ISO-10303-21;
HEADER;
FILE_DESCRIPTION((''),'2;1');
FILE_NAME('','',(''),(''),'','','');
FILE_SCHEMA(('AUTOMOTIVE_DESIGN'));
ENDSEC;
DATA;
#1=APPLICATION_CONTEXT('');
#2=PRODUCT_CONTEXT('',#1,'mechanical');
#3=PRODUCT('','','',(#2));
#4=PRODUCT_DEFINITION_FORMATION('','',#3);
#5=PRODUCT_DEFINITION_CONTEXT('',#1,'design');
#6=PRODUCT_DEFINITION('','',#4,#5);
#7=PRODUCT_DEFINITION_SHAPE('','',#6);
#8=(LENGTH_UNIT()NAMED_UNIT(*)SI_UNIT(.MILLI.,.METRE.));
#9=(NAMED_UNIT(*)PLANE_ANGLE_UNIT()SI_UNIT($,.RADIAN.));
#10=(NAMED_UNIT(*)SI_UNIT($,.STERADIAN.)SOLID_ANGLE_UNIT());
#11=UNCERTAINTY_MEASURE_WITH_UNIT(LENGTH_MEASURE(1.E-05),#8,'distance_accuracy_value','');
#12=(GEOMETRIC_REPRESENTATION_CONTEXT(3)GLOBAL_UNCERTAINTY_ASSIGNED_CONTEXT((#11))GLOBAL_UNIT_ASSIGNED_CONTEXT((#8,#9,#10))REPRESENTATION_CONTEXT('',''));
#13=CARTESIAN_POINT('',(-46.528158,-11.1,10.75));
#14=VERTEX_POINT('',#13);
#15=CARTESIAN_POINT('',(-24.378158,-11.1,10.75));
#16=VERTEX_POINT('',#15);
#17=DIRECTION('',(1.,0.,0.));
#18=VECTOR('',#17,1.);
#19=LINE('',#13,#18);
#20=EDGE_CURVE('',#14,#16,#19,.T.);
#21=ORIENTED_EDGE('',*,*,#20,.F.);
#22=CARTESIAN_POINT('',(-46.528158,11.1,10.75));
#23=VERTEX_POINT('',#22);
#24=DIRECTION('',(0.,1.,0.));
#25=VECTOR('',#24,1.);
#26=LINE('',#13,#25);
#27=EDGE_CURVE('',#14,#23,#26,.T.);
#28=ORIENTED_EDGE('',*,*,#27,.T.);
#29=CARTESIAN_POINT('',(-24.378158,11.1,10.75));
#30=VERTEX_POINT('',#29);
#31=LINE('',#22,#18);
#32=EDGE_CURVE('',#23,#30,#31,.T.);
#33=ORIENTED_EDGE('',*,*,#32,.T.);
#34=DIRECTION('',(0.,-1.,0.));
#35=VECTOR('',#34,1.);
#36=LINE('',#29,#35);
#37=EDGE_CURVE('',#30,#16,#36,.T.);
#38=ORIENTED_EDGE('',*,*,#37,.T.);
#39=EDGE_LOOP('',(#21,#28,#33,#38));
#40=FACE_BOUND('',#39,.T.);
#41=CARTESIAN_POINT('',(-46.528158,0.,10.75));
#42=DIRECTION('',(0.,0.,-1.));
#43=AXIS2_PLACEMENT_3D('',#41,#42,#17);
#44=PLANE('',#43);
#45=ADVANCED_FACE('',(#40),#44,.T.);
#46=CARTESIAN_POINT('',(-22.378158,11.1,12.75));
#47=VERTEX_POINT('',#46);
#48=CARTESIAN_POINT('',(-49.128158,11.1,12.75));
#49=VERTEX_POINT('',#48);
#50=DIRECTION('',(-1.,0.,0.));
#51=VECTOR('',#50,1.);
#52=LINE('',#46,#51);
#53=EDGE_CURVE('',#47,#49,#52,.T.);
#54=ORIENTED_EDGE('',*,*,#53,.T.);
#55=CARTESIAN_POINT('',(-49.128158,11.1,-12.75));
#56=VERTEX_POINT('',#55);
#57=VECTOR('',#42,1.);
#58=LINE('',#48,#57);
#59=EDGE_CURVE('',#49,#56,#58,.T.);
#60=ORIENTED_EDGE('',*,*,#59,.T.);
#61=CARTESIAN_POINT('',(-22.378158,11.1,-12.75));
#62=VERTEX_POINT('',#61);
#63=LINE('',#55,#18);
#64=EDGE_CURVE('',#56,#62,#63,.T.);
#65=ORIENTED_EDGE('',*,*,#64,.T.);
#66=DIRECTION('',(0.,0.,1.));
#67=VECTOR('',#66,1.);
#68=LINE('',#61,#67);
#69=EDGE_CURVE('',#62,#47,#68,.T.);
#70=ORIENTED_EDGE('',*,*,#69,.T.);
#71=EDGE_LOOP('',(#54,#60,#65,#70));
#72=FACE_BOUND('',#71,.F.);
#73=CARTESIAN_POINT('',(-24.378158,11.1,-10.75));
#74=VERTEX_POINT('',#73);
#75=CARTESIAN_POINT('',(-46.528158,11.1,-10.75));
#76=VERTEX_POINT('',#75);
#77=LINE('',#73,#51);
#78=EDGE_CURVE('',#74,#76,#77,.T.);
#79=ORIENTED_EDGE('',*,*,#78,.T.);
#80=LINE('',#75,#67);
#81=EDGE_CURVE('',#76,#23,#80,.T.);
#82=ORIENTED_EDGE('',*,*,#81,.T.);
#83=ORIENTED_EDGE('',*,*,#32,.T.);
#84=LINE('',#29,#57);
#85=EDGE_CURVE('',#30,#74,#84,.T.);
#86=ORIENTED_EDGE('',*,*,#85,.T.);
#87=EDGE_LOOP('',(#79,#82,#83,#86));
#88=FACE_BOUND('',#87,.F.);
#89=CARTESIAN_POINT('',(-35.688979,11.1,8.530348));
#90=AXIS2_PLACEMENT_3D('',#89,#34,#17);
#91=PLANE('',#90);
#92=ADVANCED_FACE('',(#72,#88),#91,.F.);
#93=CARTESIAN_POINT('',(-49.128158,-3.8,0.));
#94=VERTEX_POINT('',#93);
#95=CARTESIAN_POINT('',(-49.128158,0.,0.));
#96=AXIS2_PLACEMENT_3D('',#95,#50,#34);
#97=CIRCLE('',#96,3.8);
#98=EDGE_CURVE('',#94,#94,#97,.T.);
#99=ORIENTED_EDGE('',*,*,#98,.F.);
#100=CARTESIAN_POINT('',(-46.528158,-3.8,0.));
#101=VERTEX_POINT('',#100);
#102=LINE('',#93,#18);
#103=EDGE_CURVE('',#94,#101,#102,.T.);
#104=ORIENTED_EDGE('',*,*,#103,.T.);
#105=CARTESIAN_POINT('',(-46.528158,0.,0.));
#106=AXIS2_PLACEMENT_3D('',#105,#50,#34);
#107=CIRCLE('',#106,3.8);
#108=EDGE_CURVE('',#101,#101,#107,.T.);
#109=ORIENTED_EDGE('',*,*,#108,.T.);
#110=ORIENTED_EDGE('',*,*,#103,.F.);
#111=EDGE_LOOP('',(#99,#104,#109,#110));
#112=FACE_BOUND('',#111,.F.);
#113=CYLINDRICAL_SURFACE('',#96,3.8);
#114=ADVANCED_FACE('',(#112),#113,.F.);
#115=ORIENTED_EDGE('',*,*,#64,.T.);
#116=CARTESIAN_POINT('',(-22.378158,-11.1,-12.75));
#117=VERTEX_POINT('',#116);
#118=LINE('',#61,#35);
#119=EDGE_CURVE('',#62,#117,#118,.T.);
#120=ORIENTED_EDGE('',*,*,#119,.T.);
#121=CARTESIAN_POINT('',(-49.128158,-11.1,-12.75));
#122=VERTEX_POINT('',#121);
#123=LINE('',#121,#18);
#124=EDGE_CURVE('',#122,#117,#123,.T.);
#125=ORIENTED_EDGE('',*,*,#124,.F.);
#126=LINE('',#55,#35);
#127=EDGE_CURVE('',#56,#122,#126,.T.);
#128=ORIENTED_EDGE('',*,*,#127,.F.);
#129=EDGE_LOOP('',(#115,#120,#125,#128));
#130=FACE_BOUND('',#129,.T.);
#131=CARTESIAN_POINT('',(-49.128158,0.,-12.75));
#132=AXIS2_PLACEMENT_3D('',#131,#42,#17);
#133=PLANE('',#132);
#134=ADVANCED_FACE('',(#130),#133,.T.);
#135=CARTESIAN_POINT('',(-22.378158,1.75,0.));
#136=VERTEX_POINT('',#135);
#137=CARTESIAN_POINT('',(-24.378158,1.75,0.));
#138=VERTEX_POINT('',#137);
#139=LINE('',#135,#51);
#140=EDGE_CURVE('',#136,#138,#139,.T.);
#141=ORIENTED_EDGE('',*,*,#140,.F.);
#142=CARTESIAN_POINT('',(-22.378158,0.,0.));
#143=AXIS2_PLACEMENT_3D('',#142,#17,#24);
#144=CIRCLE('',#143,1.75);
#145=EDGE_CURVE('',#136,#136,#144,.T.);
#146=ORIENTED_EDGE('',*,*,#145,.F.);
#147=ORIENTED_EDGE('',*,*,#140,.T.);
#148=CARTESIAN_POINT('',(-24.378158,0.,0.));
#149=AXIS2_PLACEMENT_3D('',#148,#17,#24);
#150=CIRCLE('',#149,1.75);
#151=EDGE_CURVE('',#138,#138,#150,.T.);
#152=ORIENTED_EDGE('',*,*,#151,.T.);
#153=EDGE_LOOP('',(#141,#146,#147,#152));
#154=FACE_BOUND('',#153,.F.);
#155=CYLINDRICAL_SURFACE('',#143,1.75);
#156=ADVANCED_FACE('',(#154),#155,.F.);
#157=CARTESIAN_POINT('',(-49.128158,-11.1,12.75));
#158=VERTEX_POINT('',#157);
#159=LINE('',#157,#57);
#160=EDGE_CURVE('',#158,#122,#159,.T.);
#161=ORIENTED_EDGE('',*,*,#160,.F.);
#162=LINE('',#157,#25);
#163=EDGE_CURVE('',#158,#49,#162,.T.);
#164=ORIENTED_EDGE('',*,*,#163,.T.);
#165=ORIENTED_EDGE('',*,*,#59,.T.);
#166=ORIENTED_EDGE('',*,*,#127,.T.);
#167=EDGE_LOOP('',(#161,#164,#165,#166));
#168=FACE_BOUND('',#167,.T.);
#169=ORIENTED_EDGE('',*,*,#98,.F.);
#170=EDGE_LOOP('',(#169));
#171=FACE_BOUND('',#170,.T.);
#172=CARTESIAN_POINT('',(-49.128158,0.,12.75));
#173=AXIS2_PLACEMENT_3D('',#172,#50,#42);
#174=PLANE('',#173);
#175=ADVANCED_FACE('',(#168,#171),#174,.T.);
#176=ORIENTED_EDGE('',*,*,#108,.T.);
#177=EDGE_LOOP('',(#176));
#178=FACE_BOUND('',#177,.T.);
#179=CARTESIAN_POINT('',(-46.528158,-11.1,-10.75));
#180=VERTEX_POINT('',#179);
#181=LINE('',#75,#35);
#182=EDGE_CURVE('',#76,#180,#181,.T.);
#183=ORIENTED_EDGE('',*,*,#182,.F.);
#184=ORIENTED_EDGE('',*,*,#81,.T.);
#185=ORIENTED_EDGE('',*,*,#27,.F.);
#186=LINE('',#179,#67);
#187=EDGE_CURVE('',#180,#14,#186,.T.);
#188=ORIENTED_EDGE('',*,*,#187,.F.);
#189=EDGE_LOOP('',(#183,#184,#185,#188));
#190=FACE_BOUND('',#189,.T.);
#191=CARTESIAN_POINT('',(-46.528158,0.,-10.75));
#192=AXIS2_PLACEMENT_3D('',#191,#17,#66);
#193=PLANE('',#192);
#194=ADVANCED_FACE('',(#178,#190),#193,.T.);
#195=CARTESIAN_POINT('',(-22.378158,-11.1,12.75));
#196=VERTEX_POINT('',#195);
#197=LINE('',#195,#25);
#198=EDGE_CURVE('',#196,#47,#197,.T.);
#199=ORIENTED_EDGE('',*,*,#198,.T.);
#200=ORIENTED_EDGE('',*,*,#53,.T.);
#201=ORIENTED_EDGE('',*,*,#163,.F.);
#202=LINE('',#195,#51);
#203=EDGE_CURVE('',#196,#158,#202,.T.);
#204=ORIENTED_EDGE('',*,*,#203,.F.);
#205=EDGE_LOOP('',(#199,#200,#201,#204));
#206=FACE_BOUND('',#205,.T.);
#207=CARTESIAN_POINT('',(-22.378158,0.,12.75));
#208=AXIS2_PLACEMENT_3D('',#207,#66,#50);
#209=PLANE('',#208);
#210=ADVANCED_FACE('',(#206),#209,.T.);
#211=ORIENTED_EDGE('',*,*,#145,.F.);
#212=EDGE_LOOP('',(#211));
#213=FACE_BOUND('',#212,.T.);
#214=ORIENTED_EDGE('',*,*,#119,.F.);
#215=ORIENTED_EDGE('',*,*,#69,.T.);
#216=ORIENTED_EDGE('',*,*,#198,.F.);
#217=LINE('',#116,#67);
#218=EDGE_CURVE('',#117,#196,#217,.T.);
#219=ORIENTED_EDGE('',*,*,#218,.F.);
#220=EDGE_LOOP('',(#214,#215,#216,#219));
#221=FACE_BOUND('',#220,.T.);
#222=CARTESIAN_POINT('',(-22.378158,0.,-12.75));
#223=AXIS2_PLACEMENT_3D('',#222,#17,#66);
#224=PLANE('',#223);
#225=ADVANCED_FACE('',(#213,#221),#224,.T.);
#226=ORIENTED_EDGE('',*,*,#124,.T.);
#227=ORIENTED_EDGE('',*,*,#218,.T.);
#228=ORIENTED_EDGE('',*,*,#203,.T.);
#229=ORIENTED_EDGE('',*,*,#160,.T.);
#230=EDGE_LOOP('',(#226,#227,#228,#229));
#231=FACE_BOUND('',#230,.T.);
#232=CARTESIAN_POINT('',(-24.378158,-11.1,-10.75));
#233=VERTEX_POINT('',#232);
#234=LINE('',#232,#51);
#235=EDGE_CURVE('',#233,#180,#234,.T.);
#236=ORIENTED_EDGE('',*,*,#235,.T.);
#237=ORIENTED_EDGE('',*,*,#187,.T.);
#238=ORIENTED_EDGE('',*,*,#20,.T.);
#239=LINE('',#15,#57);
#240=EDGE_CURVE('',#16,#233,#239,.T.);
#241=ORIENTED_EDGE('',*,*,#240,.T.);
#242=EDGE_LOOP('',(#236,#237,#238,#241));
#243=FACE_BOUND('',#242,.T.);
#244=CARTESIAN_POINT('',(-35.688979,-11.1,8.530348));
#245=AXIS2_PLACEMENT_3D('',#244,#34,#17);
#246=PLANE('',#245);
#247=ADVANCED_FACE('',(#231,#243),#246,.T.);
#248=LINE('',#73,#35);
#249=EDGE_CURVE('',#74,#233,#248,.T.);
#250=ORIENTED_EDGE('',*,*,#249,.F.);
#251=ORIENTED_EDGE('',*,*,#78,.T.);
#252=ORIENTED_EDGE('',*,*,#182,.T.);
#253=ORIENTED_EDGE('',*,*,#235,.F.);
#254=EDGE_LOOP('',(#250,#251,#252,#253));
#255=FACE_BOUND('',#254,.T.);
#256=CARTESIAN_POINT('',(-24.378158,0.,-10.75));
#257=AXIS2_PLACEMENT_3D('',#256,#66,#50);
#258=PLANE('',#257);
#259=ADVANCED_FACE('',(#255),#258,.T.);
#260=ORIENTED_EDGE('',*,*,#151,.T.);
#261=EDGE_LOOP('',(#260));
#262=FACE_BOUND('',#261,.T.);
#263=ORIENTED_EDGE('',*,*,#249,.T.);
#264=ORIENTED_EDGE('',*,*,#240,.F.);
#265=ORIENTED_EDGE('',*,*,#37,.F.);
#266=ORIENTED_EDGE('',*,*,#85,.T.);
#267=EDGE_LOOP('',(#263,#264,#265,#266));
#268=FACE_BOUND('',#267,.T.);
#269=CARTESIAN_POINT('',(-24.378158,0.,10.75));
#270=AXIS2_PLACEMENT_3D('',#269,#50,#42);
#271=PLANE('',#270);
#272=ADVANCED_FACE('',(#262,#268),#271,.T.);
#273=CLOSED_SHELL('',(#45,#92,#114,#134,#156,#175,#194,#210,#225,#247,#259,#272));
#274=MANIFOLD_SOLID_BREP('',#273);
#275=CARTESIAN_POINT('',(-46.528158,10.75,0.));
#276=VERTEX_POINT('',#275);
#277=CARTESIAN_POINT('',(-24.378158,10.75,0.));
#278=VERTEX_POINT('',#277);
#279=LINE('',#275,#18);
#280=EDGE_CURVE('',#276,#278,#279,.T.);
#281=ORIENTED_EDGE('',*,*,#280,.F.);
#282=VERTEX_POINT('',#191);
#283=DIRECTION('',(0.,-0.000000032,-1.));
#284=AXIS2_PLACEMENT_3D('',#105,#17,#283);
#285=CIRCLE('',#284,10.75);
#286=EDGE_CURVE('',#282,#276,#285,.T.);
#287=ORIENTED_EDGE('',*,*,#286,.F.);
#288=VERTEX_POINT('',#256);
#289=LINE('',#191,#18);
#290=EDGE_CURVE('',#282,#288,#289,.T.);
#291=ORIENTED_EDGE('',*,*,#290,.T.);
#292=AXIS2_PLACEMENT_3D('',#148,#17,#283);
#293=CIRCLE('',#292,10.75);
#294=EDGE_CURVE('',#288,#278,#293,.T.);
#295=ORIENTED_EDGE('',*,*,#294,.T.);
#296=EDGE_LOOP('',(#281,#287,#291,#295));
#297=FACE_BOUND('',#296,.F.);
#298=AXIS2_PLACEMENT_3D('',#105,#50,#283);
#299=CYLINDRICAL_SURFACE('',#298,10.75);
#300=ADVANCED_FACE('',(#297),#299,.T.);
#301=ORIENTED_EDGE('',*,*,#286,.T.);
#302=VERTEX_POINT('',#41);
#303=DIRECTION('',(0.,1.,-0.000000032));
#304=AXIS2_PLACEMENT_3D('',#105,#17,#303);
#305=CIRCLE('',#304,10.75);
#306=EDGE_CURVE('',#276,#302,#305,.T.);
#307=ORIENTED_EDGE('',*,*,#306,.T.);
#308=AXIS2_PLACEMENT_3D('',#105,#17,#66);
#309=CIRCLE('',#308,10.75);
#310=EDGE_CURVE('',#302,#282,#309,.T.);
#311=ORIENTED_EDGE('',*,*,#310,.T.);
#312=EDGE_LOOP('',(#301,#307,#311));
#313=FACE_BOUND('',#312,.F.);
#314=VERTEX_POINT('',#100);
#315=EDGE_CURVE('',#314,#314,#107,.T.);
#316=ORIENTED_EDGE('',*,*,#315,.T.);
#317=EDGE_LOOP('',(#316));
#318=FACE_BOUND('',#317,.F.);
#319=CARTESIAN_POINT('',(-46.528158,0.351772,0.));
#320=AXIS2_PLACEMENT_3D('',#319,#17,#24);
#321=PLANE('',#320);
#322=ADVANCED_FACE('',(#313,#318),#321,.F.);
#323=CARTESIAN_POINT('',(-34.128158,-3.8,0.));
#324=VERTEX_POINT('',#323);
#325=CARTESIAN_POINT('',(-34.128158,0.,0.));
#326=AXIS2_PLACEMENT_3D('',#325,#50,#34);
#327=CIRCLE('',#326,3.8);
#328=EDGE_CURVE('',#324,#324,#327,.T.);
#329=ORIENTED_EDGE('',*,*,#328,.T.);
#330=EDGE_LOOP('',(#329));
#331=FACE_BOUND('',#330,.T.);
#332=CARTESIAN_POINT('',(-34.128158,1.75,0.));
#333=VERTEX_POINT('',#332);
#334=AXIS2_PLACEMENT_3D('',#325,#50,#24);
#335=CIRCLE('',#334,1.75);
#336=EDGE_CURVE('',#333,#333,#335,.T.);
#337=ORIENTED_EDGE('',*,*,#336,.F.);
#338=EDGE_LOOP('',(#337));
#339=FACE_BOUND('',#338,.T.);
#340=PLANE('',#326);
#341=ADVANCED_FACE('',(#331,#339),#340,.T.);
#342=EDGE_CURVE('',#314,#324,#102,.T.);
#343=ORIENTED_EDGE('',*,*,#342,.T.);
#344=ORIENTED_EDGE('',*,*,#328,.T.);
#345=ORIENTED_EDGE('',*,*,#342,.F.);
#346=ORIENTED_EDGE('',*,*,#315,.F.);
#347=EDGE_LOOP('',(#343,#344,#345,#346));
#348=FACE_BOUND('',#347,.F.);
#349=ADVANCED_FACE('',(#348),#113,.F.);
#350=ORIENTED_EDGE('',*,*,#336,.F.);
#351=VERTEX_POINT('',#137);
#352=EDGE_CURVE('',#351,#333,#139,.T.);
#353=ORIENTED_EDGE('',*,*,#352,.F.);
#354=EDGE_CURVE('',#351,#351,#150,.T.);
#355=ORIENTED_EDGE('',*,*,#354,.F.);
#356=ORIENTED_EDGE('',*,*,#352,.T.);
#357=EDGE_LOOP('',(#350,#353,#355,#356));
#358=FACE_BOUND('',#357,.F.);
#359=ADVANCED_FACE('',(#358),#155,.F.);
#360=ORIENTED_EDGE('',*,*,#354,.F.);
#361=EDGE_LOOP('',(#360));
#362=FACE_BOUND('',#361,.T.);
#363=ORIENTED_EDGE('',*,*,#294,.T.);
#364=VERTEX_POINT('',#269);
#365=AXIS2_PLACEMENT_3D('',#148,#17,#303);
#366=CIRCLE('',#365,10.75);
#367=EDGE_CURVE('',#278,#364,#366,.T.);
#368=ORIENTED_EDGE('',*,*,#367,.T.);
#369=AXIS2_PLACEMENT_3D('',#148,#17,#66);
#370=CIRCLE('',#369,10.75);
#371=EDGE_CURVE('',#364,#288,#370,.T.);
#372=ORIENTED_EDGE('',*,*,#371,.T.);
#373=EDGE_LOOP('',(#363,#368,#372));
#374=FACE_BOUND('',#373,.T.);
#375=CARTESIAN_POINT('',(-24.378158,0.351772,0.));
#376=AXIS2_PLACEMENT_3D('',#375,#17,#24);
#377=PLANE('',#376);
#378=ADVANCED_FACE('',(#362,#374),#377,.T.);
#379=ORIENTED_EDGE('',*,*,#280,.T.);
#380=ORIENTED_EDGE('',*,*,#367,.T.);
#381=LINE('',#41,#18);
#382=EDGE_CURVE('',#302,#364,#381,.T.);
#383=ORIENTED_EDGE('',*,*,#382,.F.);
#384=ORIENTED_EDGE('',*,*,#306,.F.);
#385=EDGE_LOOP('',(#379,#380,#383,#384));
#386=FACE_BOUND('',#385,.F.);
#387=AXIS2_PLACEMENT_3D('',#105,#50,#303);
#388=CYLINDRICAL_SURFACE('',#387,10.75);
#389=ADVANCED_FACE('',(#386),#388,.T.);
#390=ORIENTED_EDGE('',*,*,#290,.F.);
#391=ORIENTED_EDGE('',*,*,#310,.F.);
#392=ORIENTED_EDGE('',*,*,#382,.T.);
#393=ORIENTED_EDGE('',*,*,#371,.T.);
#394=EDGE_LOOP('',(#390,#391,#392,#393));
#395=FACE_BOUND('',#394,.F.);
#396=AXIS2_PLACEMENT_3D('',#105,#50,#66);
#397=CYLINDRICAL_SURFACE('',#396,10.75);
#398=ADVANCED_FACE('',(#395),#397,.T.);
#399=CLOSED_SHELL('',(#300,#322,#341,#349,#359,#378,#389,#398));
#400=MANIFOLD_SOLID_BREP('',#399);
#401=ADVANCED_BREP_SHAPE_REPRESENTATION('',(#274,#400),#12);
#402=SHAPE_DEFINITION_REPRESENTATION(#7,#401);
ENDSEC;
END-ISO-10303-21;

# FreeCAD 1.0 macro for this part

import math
import FreeCAD as App
import Part
import Sketcher
from FreeCAD import Vector


def add_polygon(sketch, points):
    """Adds a closed chain of lines whose ends are joined by coincident constraints."""
    first, n = sketch.GeometryCount, len(points)
    for a, b in zip(points, points[1:] + points[:1]):
        sketch.addGeometry(Part.LineSegment(App.Vector(*a, 0), App.Vector(*b, 0)), False)
    for i in range(n):
        sketch.addConstraint(Sketcher.Constraint("Coincident", first + i, 2, first + (i + 1) % n, 1))

doc = App.newDocument("Part")
body = doc.addObject("PartDesign::Body", "Body")

# Sketch on XZ plane
sketch1 = body.newObject("Sketcher::SketchObject", "Sketch")
sketch1.AttachmentSupport = (doc.getObject("XZ_Plane"), [""])
sketch1.MapMode = "FlatFace"
add_polygon(sketch1, [(-49, 13), (-49, -13), (-22, -13), (-22, 13)])  # lines 0-3
add_polygon(sketch1, [(-47, 11), (-24, 11), (-24, -11), (-47, -11)])  # lines 4-7
sketch1.addConstraint([
    Sketcher.Constraint("Vertical", 0),
    Sketcher.Constraint("Horizontal", 1),
    Sketcher.Constraint("Vertical", 2),
    Sketcher.Constraint("Horizontal", 3),
    Sketcher.Constraint("Horizontal", 4),
    Sketcher.Constraint("Vertical", 5),
    Sketcher.Constraint("Horizontal", 6),
    Sketcher.Constraint("Vertical", 7),
    Sketcher.Constraint("DistanceY", 0, 2, 0, 1, 25.5),
    Sketcher.Constraint("DistanceY", 5, 2, 5, 1, 21.5),
    Sketcher.Constraint("DistanceX", 4, 2, 2, 2, 2.0),
    Sketcher.Constraint("DistanceY", 4, 2, 2, 2, 2.0),
    Sketcher.Constraint("DistanceX", 1, 1, 1, 2, 26.75),
    Sketcher.Constraint("DistanceX", 4, 1, 4, 2, 22.15),
    Sketcher.Constraint("DistanceY", 0, 2, -1, 1, 12.75),
    Sketcher.Constraint("DistanceX", 0, 2, -1, 1, 49.128158),
])
pad1 = body.newObject("PartDesign::Pad", "Pad")
pad1.Profile = sketch1
pad1.Length = 22.2
pad1.Midplane = True
body2 = doc.addObject("PartDesign::Body", "Body001")

# Sketch on YZ plane
sketch2 = body2.newObject("Sketcher::SketchObject", "Sketch001")
sketch2.AttachmentSupport = (doc.getObject("YZ_Plane001"), [""])
sketch2.MapMode = "FlatFace"
sketch2.AttachmentOffset = App.Placement(Vector(0, 0, -46.528158), App.Rotation())
sketch2.addGeometry([
    Part.ArcOfCircle(Part.Circle(Vector(0, 0, 0), Vector(0, 0, 1), 11), math.radians(-90), math.radians(0)),
    Part.ArcOfCircle(Part.Circle(Vector(0, 0, 0), Vector(0, 0, 1), 11), math.radians(0), math.radians(90)),
    Part.ArcOfCircle(Part.Circle(Vector(0, 0, 0), Vector(0, 0, 1), 11), math.radians(90), math.radians(270)),
], False)
sketch2.addConstraint([
    Sketcher.Constraint("Tangent", 0, 2, 1, 1),
    Sketcher.Constraint("Tangent", 1, 2, 2, 1),
    Sketcher.Constraint("Tangent", 2, 2, 0, 1),
    Sketcher.Constraint("Coincident", 0, 3, -1, 1),
    Sketcher.Constraint("PointOnObject", 0, 2, -1),
    Sketcher.Constraint("PointOnObject", 1, 2, -2),
    Sketcher.Constraint("PointOnObject", 2, 2, -2),
    Sketcher.Constraint("Radius", 0, 10.75),
])
pad2 = body2.newObject("PartDesign::Pad", "Pad001")
pad2.Profile = sketch2
pad2.Length = 22.15
body3 = doc.addObject("PartDesign::Body", "Body002")

# Sketch on YZ plane
sketch3 = body3.newObject("Sketcher::SketchObject", "Sketch002")
sketch3.AttachmentSupport = (doc.getObject("YZ_Plane002"), [""])
sketch3.MapMode = "FlatFace"
sketch3.AttachmentOffset = App.Placement(Vector(0, 0, -22.378158), App.Rotation())
sketch3.addGeometry(Part.Circle(Vector(0, 0, 0), Vector(0, 0, 1), 1.8), False)
sketch3.addConstraint([
    Sketcher.Constraint("Coincident", 0, 3, -1, 1),
    Sketcher.Constraint("Diameter", 0, 3.5),
])
pad3 = body3.newObject("PartDesign::Pad", "Pad002")
pad3.Profile = sketch3
pad3.Length = 26.75
pad3.Reversed = True
doc.recompute()

body4 = doc.addObject("PartDesign::Body", "Body003")
body4.BaseFeature = body3
boolean = body.newObject("PartDesign::Boolean", "Boolean")
boolean.Type = "Cut"
boolean.addObjects([body4])
doc.recompute()

boolean2 = body2.newObject("PartDesign::Boolean", "Boolean001")
boolean2.Type = "Cut"
boolean2.addObjects([body3])
body5 = doc.addObject("PartDesign::Body", "Body004")

# Sketch on YZ plane
sketch4 = body5.newObject("Sketcher::SketchObject", "Sketch003")
sketch4.AttachmentSupport = (doc.getObject("YZ_Plane004"), [""])
sketch4.MapMode = "FlatFace"
sketch4.AttachmentOffset = App.Placement(Vector(0, 0, -49.128158), App.Rotation())
sketch4.addGeometry([
    Part.Circle(Vector(0, 0, 0), Vector(0, 0, 1), 3.8),
    Part.Circle(Vector(0, 0, 0), Vector(0, 0, 1), 1.8),
], False)
sketch4.addConstraint([
    Sketcher.Constraint("Coincident", 0, 3, -1, 1),
    Sketcher.Constraint("Coincident", 1, 3, -1, 1),
    Sketcher.Constraint("Diameter", 0, 7.6),
    Sketcher.Constraint("Diameter", 1, 3.5),
])
pad4 = body5.newObject("PartDesign::Pad", "Pad003")
pad4.Profile = sketch4
pad4.Length = 15
doc.recompute()

body6 = doc.addObject("PartDesign::Body", "Body005")
body6.BaseFeature = body5
boolean3 = body.newObject("PartDesign::Boolean", "Boolean002")
boolean3.Type = "Cut"
boolean3.addObjects([body6])
doc.recompute()

boolean4 = body2.newObject("PartDesign::Boolean", "Boolean003")
boolean4.Type = "Cut"
boolean4.addObjects([body5])

doc.recompute()
